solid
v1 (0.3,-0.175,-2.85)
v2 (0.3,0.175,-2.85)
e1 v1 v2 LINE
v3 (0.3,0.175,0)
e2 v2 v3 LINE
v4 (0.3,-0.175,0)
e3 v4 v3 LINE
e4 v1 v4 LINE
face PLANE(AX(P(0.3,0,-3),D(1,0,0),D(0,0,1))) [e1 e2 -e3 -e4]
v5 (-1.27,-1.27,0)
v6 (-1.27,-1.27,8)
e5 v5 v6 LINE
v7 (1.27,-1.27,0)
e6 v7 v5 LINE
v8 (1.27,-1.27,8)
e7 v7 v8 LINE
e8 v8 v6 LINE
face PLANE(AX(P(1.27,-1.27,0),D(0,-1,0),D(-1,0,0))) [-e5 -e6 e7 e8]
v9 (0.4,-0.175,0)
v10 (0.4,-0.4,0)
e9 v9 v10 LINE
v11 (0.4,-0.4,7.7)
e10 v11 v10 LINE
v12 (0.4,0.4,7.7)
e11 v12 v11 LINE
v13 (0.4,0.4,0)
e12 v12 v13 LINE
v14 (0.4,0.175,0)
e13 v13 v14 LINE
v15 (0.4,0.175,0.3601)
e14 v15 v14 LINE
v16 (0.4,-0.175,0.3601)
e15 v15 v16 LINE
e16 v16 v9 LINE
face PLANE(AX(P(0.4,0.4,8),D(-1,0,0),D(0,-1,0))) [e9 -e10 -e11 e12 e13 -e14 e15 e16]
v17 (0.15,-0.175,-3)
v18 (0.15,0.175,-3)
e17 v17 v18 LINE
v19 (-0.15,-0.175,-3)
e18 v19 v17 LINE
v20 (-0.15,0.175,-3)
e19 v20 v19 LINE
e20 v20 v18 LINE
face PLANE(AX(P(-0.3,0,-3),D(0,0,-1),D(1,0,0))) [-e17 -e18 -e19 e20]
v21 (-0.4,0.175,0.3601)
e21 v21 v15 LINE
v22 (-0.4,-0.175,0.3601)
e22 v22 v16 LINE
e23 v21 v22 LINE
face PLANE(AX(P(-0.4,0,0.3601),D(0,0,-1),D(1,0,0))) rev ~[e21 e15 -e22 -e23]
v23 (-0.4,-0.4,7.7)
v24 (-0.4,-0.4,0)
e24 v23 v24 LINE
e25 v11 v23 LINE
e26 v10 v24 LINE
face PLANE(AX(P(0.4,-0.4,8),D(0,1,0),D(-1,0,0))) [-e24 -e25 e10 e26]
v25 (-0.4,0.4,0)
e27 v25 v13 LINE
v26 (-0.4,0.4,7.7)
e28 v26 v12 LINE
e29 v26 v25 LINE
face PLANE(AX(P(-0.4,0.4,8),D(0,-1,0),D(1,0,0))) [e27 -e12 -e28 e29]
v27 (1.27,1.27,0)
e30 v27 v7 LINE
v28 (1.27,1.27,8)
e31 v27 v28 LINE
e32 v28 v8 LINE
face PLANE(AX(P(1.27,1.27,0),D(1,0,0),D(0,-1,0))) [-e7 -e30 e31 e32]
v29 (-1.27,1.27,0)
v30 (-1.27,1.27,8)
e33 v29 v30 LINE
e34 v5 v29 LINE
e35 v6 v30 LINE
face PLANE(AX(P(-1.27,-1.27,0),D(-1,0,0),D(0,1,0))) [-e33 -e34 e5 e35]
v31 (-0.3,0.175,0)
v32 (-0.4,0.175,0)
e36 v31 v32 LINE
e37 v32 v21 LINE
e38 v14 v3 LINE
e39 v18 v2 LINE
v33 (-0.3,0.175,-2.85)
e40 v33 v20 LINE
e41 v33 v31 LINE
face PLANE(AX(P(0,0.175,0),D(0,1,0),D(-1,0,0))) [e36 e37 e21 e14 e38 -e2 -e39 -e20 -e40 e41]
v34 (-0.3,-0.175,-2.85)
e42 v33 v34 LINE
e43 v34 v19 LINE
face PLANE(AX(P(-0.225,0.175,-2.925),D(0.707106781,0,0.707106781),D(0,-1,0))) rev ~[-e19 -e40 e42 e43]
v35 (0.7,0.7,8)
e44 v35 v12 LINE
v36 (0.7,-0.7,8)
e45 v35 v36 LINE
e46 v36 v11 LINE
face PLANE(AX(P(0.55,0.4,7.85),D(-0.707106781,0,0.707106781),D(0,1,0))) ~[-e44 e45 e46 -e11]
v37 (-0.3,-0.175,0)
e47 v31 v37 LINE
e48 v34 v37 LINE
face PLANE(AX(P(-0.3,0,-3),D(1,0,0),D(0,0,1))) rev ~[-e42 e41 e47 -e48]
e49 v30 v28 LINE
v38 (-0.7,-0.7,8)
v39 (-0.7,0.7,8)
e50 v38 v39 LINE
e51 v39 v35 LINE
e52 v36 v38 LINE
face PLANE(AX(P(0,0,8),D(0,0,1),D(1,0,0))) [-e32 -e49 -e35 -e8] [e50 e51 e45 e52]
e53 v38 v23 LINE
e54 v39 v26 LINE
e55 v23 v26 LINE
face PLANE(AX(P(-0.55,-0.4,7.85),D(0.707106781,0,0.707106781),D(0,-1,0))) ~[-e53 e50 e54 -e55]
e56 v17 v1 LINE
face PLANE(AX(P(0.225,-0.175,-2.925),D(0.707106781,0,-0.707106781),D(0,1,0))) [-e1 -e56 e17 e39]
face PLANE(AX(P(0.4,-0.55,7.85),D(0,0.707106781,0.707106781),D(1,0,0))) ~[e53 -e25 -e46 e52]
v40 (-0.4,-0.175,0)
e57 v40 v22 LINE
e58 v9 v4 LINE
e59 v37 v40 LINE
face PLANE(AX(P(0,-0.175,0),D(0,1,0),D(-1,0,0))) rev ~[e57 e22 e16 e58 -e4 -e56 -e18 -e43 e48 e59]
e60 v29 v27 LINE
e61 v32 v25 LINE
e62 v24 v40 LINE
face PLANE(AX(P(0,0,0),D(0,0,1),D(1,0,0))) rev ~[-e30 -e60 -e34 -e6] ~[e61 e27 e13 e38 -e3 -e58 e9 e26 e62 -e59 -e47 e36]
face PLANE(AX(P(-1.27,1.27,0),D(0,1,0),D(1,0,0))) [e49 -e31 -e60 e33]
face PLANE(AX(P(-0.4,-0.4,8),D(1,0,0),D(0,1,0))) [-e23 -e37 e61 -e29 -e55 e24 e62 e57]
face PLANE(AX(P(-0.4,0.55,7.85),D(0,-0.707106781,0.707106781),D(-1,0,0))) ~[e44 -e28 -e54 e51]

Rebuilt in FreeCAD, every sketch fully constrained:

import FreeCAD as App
import Part
import Sketcher

V = App.Vector


def edges_at(feature, points):
    """Names of the edges that pass closest to the given points."""
    edges = feature.Shape.Edges
    near = lambda p: min(range(len(edges)), key=lambda i: edges[i].distToShape(Part.Vertex(*p))[0])
    return sorted({f"Edge{near(p) + 1}" for p in points})

doc = App.newDocument("Part")
body = doc.addObject("PartDesign::Body", "Body")

# Sketch on XY plane
sketch1 = doc.addObject("Sketcher::SketchObject", "Sketch")
body.addObject(sketch1)
sketch1.AttachmentSupport = (doc.XY_Plane, [""])
sketch1.MapMode = "FlatFace"
sketch1.addGeometry(Part.LineSegment(V(1.27, 1.27, 0), V(-1.27, 1.27, 0)), False)
sketch1.addGeometry(Part.LineSegment(V(-1.27, 1.27, 0), V(-1.27, -1.27, 0)), False)
sketch1.addGeometry(Part.LineSegment(V(-1.27, -1.27, 0), V(1.27, -1.27, 0)), False)
sketch1.addGeometry(Part.LineSegment(V(1.27, -1.27, 0), V(1.27, 1.27, 0)), False)
sketch1.addConstraint(Sketcher.Constraint("Coincident", 0, 2, 1, 1))
sketch1.addConstraint(Sketcher.Constraint("Coincident", 1, 2, 2, 1))
sketch1.addConstraint(Sketcher.Constraint("Coincident", 2, 2, 3, 1))
sketch1.addConstraint(Sketcher.Constraint("Coincident", 3, 2, 0, 1))
sketch1.addConstraint(Sketcher.Constraint("Horizontal", 0))
sketch1.addConstraint(Sketcher.Constraint("Vertical", 1))
sketch1.addConstraint(Sketcher.Constraint("Horizontal", 2))
sketch1.addConstraint(Sketcher.Constraint("Vertical", 3))
sketch1.addConstraint(Sketcher.Constraint("Symmetric", 0, 2, 2, 2, -1, 1))
sketch1.addConstraint(Sketcher.Constraint("Equal", 2, 1))
sketch1.addConstraint(Sketcher.Constraint("DistanceX", 0, 2, 0, 1, 2.54))
pad1 = doc.addObject("PartDesign::Pad", "Pad")
body.addObject(pad1)
pad1.Profile = sketch1
pad1.Length = 8

# Sketch on XY plane
sketch2 = doc.addObject("Sketcher::SketchObject", "Sketch001")
body.addObject(sketch2)
sketch2.AttachmentSupport = (doc.XY_Plane, [""])
sketch2.MapMode = "FlatFace"
sketch2.AttachmentOffset = App.Placement(V(0, 0, 8), App.Rotation())
sketch2.addGeometry(Part.LineSegment(V(0.4, 0.4, 0), V(-0.4, 0.4, 0)), False)
sketch2.addGeometry(Part.LineSegment(V(-0.4, 0.4, 0), V(-0.4, -0.4, 0)), False)
sketch2.addGeometry(Part.LineSegment(V(-0.4, -0.4, 0), V(0.4, -0.4, 0)), False)
sketch2.addGeometry(Part.LineSegment(V(0.4, -0.4, 0), V(0.4, 0.4, 0)), False)
sketch2.addConstraint(Sketcher.Constraint("Coincident", 0, 2, 1, 1))
sketch2.addConstraint(Sketcher.Constraint("Coincident", 1, 2, 2, 1))
sketch2.addConstraint(Sketcher.Constraint("Coincident", 2, 2, 3, 1))
sketch2.addConstraint(Sketcher.Constraint("Coincident", 3, 2, 0, 1))
sketch2.addConstraint(Sketcher.Constraint("Horizontal", 0))
sketch2.addConstraint(Sketcher.Constraint("Vertical", 1))
sketch2.addConstraint(Sketcher.Constraint("Horizontal", 2))
sketch2.addConstraint(Sketcher.Constraint("Vertical", 3))
sketch2.addConstraint(Sketcher.Constraint("Symmetric", 0, 2, 2, 2, -1, 1))
sketch2.addConstraint(Sketcher.Constraint("Equal", 2, 1))
sketch2.addConstraint(Sketcher.Constraint("DistanceX", 0, 2, 0, 1, 0.8))
pocket1 = doc.addObject("PartDesign::Pocket", "Pocket")
body.addObject(pocket1)
pocket1.Profile = sketch2
pocket1.Length = 8
doc.recompute()

chamfer = doc.addObject("PartDesign::Chamfer", "Chamfer")
body.addObject(chamfer)
chamfer.Base = (pocket1, edges_at(pocket1, [
    (0, 0.4, 8),
    (0.4, 0, 8),
    (0, -0.4, 8),
    (-0.4, 0, 8),
]))
chamfer.Size = 0.3

# Sketch on XZ plane
sketch3 = doc.addObject("Sketcher::SketchObject", "Sketch002")
body.addObject(sketch3)
sketch3.AttachmentSupport = (doc.XZ_Plane, [""])
sketch3.MapMode = "FlatFace"
sketch3.addGeometry(Part.LineSegment(V(0.4, 0.3601, 0), V(0.4, 0, 0)), False)
sketch3.addGeometry(Part.LineSegment(V(0.4, 0, 0), V(0.3, 0, 0)), False)
sketch3.addGeometry(Part.LineSegment(V(0.3, 0, 0), V(0.3, -3, 0)), False)
sketch3.addGeometry(Part.LineSegment(V(0.3, -3, 0), V(-0.3, -3, 0)), False)
sketch3.addGeometry(Part.LineSegment(V(-0.3, -3, 0), V(-0.3, 0, 0)), False)
sketch3.addGeometry(Part.LineSegment(V(-0.3, 0, 0), V(-0.4, 0, 0)), False)
sketch3.addGeometry(Part.LineSegment(V(-0.4, 0, 0), V(-0.4, 0.3601, 0)), False)
sketch3.addGeometry(Part.LineSegment(V(-0.4, 0.3601, 0), V(0.4, 0.3601, 0)), False)
sketch3.addConstraint(Sketcher.Constraint("Coincident", 0, 2, 1, 1))
sketch3.addConstraint(Sketcher.Constraint("Coincident", 1, 2, 2, 1))
sketch3.addConstraint(Sketcher.Constraint("Coincident", 2, 2, 3, 1))
sketch3.addConstraint(Sketcher.Constraint("Coincident", 3, 2, 4, 1))
sketch3.addConstraint(Sketcher.Constraint("Coincident", 4, 2, 5, 1))
sketch3.addConstraint(Sketcher.Constraint("Coincident", 5, 2, 6, 1))
sketch3.addConstraint(Sketcher.Constraint("Coincident", 6, 2, 7, 1))
sketch3.addConstraint(Sketcher.Constraint("Coincident", 7, 2, 0, 1))
sketch3.addConstraint(Sketcher.Constraint("Vertical", 0))
sketch3.addConstraint(Sketcher.Constraint("Horizontal", 1))
sketch3.addConstraint(Sketcher.Constraint("Vertical", 2))
sketch3.addConstraint(Sketcher.Constraint("Horizontal", 3))
sketch3.addConstraint(Sketcher.Constraint("Vertical", 4))
sketch3.addConstraint(Sketcher.Constraint("Horizontal", 5))
sketch3.addConstraint(Sketcher.Constraint("Vertical", 6))
sketch3.addConstraint(Sketcher.Constraint("Horizontal", 7))
sketch3.addConstraint(Sketcher.Constraint("Symmetric", 1, 2, 4, 2, -1, 1))
sketch3.addConstraint(Sketcher.Constraint("Symmetric", 0, 2, 5, 2, -2))
sketch3.addConstraint(Sketcher.Constraint("DistanceY", 2, 2, 2, 1, 3.0))
sketch3.addConstraint(Sketcher.Constraint("DistanceX", 3, 2, 3, 1, 0.6))
sketch3.addConstraint(Sketcher.Constraint("DistanceX", 1, 2, 1, 1, 0.1))
sketch3.addConstraint(Sketcher.Constraint("DistanceY", 0, 2, 0, 1, 0.36))
pad2 = doc.addObject("PartDesign::Pad", "Pad001")
body.addObject(pad2)
pad2.Profile = sketch3
pad2.Length = 0.35
pad2.Midplane = True
doc.recompute()

chamfer2 = doc.addObject("PartDesign::Chamfer", "Chamfer001")
body.addObject(chamfer2)
chamfer2.Base = (pad2, edges_at(pad2, [(0.3, 0, -3), (-0.3, 0, -3)]))
chamfer2.Size = 0.15

doc.recompute()
